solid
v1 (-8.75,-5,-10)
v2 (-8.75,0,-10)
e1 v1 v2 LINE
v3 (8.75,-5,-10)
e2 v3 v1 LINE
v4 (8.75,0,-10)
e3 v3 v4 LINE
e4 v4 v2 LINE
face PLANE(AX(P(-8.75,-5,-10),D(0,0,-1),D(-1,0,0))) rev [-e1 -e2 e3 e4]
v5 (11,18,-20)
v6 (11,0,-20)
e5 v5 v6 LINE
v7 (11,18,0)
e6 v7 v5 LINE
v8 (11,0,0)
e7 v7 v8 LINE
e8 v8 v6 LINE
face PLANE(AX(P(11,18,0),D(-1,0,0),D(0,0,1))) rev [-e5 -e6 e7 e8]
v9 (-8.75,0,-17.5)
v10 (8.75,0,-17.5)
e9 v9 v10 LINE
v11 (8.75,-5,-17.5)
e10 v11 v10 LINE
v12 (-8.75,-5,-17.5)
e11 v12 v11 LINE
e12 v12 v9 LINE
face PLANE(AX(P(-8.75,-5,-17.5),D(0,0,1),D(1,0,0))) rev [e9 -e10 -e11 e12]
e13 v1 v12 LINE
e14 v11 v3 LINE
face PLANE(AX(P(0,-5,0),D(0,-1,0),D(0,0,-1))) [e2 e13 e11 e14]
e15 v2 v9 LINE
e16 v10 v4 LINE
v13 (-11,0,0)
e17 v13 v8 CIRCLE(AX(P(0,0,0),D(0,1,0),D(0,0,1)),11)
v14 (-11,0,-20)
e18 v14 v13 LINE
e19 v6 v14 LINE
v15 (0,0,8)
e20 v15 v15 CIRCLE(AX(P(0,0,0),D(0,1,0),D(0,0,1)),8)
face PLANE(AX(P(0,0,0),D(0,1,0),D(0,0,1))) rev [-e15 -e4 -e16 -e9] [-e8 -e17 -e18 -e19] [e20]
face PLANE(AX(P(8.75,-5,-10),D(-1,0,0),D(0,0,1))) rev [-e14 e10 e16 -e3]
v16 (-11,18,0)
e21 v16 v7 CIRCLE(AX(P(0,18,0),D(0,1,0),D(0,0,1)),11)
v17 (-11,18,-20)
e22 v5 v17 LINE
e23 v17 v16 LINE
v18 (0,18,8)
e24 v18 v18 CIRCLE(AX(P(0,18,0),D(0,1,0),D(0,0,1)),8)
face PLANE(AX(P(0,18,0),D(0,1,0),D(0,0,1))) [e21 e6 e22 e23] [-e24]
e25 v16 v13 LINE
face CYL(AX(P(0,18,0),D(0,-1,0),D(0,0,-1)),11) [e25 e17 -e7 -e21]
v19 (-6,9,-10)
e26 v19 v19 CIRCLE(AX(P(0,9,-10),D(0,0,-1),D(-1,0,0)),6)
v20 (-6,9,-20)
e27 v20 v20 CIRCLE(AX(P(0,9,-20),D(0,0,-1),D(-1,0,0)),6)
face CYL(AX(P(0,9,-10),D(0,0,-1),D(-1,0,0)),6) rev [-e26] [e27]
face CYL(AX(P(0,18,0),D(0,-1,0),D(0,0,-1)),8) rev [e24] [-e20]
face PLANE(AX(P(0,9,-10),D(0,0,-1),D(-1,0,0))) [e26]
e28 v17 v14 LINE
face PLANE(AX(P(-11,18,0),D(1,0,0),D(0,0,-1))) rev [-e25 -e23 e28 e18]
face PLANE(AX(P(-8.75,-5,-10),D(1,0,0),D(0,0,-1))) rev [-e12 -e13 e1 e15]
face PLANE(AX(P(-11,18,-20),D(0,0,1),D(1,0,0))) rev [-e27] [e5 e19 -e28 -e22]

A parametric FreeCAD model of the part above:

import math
import FreeCAD as App
import Part
import Sketcher

V = App.Vector
Q = App.Units.Quantity

doc = App.newDocument("Part")
params = doc.addObject("Spreadsheet::Sheet", "Params")
for row, (alias, value) in enumerate([
    ("sketch1_diameter", "16 mm"),
    ("sketch1_radius", "11 mm"),
    ("sketch1_height", "20 mm"),
    ("pad1_length", "18 mm"),
    ("sketch2_diameter", "12 mm"),
    ("pocket1_length", "10 mm"),
    ("sketch3_width", "17.5 mm"),
    ("sketch3_height", "7.5 mm"),
    ("pad2_length", "5 mm"),
], start=1):
    params.set(f"A{row}", alias)
    params.set(f"B{row}", "=" + value)
    params.setAlias(f"B{row}", alias)

body = doc.addObject("PartDesign::Body", "Body")

# Sketch on XZ plane
sketch1 = body.newObject("Sketcher::SketchObject", "Sketch")
sketch1.AttachmentSupport = (doc.getObject("XZ_Plane"), [""])
sketch1.MapMode = "FlatFace"
sketch1.addGeometry([
    Part.LineSegment(V(-11, -20, 0), V(-11, 0, 0)),  # 0
    Part.ArcOfCircle(Part.Circle(V(0, 0, 0), V(0, 0, 1), 11), math.radians(0), math.radians(180)),  # 1
    Part.LineSegment(V(11, 0, 0), V(11, -20, 0)),  # 2
    Part.LineSegment(V(11, -20, 0), V(-11, -20, 0)),  # 3
    Part.Circle(V(0, 0, 0), V(0, 0, 1), 8),  # 4
], False)
sketch1.addConstraint([
    Sketcher.Constraint("Tangent", 0, 2, 1, 2),
    Sketcher.Constraint("Tangent", 1, 1, 2, 1),
    Sketcher.Constraint("Coincident", 2, 2, 3, 1),
    Sketcher.Constraint("Coincident", 3, 2, 0, 1),
    Sketcher.Constraint("Vertical", 0),
    Sketcher.Constraint("Vertical", 2),
    Sketcher.Constraint("Horizontal", 3),
    Sketcher.Constraint("Coincident", 1, 3, -1, 1),
    Sketcher.Constraint("Coincident", 4, 3, -1, 1),
    Sketcher.Constraint("Diameter", 4, Q("16 mm")),
    Sketcher.Constraint("Radius", 1, Q("11 mm")),
    Sketcher.Constraint("DistanceY", 0, 1, 0, 2, Q("20 mm")),
])
sketch1.setExpression("Constraints[9]", "Params.sketch1_diameter")
sketch1.setExpression("Constraints[10]", "Params.sketch1_radius")
sketch1.setExpression("Constraints[11]", "Params.sketch1_height")
pad1 = body.newObject("PartDesign::Pad", "Pad")
pad1.Profile = sketch1
pad1.setExpression("Length", "Params.pad1_length")
pad1.Reversed = True

# Sketch on XY plane
sketch2 = body.newObject("Sketcher::SketchObject", "Sketch001")
sketch2.AttachmentSupport = (doc.getObject("XY_Plane"), [""])
sketch2.MapMode = "FlatFace"
sketch2.AttachmentOffset = App.Placement(V(0, 0, -20), App.Rotation())
sketch2.addGeometry(Part.Circle(V(0, 9, 0), V(0, 0, 1), 6), False)
sketch2.addConstraint([
    Sketcher.Constraint("PointOnObject", 0, 3, -2),
    Sketcher.Constraint("Diameter", 0, Q("12 mm")),
    Sketcher.Constraint("DistanceY", -1, 1, 0, 3, Q("9 mm")),
])
sketch2.setExpression("Constraints[1]", "Params.sketch2_diameter")
pocket1 = body.newObject("PartDesign::Pocket", "Pocket")
pocket1.Profile = sketch2
pocket1.setExpression("Length", "Params.pocket1_length")
pocket1.Reversed = True

# Sketch on XZ plane
sketch3 = body.newObject("Sketcher::SketchObject", "Sketch002")
sketch3.AttachmentSupport = (doc.getObject("XZ_Plane"), [""])
sketch3.MapMode = "FlatFace"
sketch3.addGeometry([
    Part.LineSegment(V(-9, -10, 0), V(-9, -18, 0)),
    Part.LineSegment(V(-9, -18, 0), V(9, -18, 0)),
    Part.LineSegment(V(9, -18, 0), V(9, -10, 0)),
    Part.LineSegment(V(9, -10, 0), V(-9, -10, 0)),
], False)
sketch3.addConstraint([
    Sketcher.Constraint("Coincident", 0, 2, 1, 1),
    Sketcher.Constraint("Coincident", 1, 2, 2, 1),
    Sketcher.Constraint("Coincident", 2, 2, 3, 1),
    Sketcher.Constraint("Coincident", 3, 2, 0, 1),
    Sketcher.Constraint("Vertical", 0),
    Sketcher.Constraint("Horizontal", 1),
    Sketcher.Constraint("Vertical", 2),
    Sketcher.Constraint("Horizontal", 3),
    Sketcher.Constraint("DistanceX", 1, 1, 1, 2, Q("17.5 mm")),
    Sketcher.Constraint("DistanceY", 0, 2, 0, 1, Q("7.5 mm")),
    Sketcher.Constraint("DistanceY", 2, 2, -1, 1, Q("10 mm")),
    Sketcher.Constraint("DistanceX", 0, 2, -1, 1, Q("8.75 mm")),
])
sketch3.setExpression("Constraints[8]", "Params.sketch3_width")
sketch3.setExpression("Constraints[9]", "Params.sketch3_height")
pad2 = body.newObject("PartDesign::Pad", "Pad001")
pad2.Profile = sketch3
pad2.setExpression("Length", "Params.pad2_length")

doc.recompute()
